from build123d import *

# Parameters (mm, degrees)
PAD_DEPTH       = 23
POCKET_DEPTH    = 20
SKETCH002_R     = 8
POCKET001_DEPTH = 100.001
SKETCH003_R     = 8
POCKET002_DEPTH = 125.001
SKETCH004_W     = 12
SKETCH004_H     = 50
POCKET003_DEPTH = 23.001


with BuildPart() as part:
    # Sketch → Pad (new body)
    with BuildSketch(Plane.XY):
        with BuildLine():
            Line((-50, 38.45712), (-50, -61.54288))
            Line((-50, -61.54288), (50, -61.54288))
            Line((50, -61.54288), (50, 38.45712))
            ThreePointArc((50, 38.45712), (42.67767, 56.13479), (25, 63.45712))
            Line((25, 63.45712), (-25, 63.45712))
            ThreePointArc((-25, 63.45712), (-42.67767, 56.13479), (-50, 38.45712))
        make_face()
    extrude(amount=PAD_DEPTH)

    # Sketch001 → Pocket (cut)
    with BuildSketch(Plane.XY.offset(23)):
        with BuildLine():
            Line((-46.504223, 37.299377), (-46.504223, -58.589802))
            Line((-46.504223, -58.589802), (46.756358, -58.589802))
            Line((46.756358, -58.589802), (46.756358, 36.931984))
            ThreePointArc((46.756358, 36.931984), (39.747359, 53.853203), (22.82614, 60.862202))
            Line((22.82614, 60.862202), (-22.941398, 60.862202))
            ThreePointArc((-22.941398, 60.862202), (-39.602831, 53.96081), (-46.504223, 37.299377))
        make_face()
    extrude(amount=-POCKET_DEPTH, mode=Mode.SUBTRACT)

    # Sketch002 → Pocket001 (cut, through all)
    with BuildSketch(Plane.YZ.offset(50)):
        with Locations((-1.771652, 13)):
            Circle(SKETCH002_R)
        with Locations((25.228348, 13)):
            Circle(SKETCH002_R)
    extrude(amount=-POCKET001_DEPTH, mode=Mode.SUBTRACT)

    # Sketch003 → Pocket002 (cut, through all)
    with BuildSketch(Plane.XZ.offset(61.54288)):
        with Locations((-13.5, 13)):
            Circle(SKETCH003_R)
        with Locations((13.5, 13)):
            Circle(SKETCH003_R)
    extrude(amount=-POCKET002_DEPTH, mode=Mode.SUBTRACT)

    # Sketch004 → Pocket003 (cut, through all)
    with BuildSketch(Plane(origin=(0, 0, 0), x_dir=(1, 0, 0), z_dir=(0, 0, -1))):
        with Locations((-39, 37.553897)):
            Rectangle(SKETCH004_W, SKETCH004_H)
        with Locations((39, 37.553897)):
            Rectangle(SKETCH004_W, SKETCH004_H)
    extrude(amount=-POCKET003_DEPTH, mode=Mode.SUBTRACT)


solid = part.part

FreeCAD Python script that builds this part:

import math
import FreeCAD as App
import Part
import Sketcher
from FreeCAD import Vector
Q = App.Units.Quantity


def add_polygon(sketch, points):
    """Adds a closed chain of lines whose ends are joined by coincident constraints."""
    first, n = sketch.GeometryCount, len(points)
    for a, b in zip(points, points[1:] + points[:1]):
        sketch.addGeometry(Part.LineSegment(App.Vector(*a, 0), App.Vector(*b, 0)), False)
    for i in range(n):
        sketch.addConstraint(Sketcher.Constraint("Coincident", first + i, 2, first + (i + 1) % n, 1))

doc = App.newDocument("Part")
body = doc.addObject("PartDesign::Body", "Body")

sketch1 = body.newObject("Sketcher::SketchObject", "Sketch")
sketch1.AttachmentSupport = (doc.getObject("XY_Plane"), [""])
sketch1.MapMode = "FlatFace"
sketch1.addGeometry([
    Part.LineSegment(Vector(-50, 38, 0), Vector(-50, -62, 0)),
    Part.LineSegment(Vector(-50, -62, 0), Vector(50, -62, 0)),
    Part.LineSegment(Vector(50, -62, 0), Vector(50, 38, 0)),
    Part.ArcOfCircle(Part.Circle(Vector(25, 38, 0), Vector(0, 0, 1), 25), math.radians(0), math.radians(90)),
    Part.LineSegment(Vector(25, 63, 0), Vector(-25, 63, 0)),
    Part.ArcOfCircle(Part.Circle(Vector(-25, 38, 0), Vector(0, 0, 1), 25), math.radians(90), math.radians(180)),
], False)
sketch1.addConstraint([
    Sketcher.Constraint("Coincident", 0, 2, 1, 1),
    Sketcher.Constraint("Coincident", 1, 2, 2, 1),
    Sketcher.Constraint("Tangent", 2, 2, 3, 1),
    Sketcher.Constraint("Tangent", 3, 2, 4, 1),
    Sketcher.Constraint("Tangent", 4, 2, 5, 1),
    Sketcher.Constraint("Tangent", 5, 2, 0, 1),
    Sketcher.Constraint("Vertical", 0),
    Sketcher.Constraint("Horizontal", 1),
    Sketcher.Constraint("Vertical", 2),
    Sketcher.Constraint("Horizontal", 4),
    Sketcher.Constraint("Equal", 3, 5),
    Sketcher.Constraint("Equal", 1, 0),
    Sketcher.Constraint("Radius", 3, Q("24.999998 mm")),
    Sketcher.Constraint("DistanceX", 1, 1, 1, 2, Q("100 mm")),
    Sketcher.Constraint("DistanceX", -1, 1, 3, 3, Q("25.000002 mm")),
    Sketcher.Constraint("DistanceY", -1, 1, 3, 3, Q("38.457122 mm")),
])
pad1 = body.newObject("PartDesign::Pad", "Pad")
pad1.Profile = sketch1
pad1.Length = 23

sketch2 = body.newObject("Sketcher::SketchObject", "Sketch001")
sketch2.AttachmentSupport = (doc.getObject("XY_Plane"), [""])
sketch2.MapMode = "FlatFace"
sketch2.AttachmentOffset = App.Placement(Vector(0, 0, 23), App.Rotation())
sketch2.addGeometry([
    Part.LineSegment(Vector(-47, 37, 0), Vector(-47, -59, 0)),
    Part.LineSegment(Vector(-47, -59, 0), Vector(47, -59, 0)),
    Part.LineSegment(Vector(47, -59, 0), Vector(47, 37, 0)),
    Part.ArcOfCircle(Part.Circle(Vector(23, 37, 0), Vector(0, 0, 1), 24), math.radians(0), math.radians(90)),
    Part.LineSegment(Vector(23, 61, 0), Vector(-23, 61, 0)),
    Part.ArcOfCircle(Part.Circle(Vector(-23, 37, 0), Vector(0, 0, 1), 24), math.radians(90), math.radians(180)),
], False)
sketch2.addConstraint([
    Sketcher.Constraint("Coincident", 0, 2, 1, 1),
    Sketcher.Constraint("Coincident", 1, 2, 2, 1),
    Sketcher.Constraint("Tangent", 2, 2, 3, 1),
    Sketcher.Constraint("Tangent", 3, 2, 4, 1),
    Sketcher.Constraint("Tangent", 4, 2, 5, 1),
    Sketcher.Constraint("Tangent", 5, 2, 0, 1),
    Sketcher.Constraint("Vertical", 0),
    Sketcher.Constraint("Horizontal", 1),
    Sketcher.Constraint("Vertical", 2),
    Sketcher.Constraint("Horizontal", 4),
    Sketcher.Constraint("Radius", 3, Q("23.930219 mm")),
    Sketcher.Constraint("Radius", 5, Q("23.562826 mm")),
    Sketcher.Constraint("DistanceX", 1, 1, 1, 2, Q("93.260581 mm")),
    Sketcher.Constraint("DistanceY", 0, 2, 0, 1, Q("95.889179 mm")),
    Sketcher.Constraint("DistanceY", -1, 1, 3, 2, Q("60.862202 mm")),
    Sketcher.Constraint("DistanceX", -1, 1, 3, 3, Q("22.826139 mm")),
])
pocket1 = body.newObject("PartDesign::Pocket", "Pocket")
pocket1.Profile = sketch2
pocket1.Length = 20

sketch3 = body.newObject("Sketcher::SketchObject", "Sketch002")
sketch3.AttachmentSupport = (doc.getObject("YZ_Plane"), [""])
sketch3.MapMode = "FlatFace"
sketch3.AttachmentOffset = App.Placement(Vector(0, 0, 50), App.Rotation())
sketch3.addGeometry([
    Part.Circle(Vector(-2, 13, 0), Vector(0, 0, 1), 8),
    Part.Circle(Vector(25, 13, 0), Vector(0, 0, 1), 8),
], False)
sketch3.addConstraint([
    Sketcher.Constraint("Equal", 0, 1),
    Sketcher.Constraint("Horizontal", 0, 3, 1, 3),
    Sketcher.Constraint("Diameter", 0, Q("16 mm")),
    Sketcher.Constraint("DistanceY", -1, 1, 0, 3, Q("13 mm")),
    Sketcher.Constraint("DistanceX", 0, 3, 1, 3, Q("27 mm")),
    Sketcher.Constraint("DistanceX", -1, 1, 1, 3, Q("25.228348 mm")),
])
pocket2 = body.newObject("PartDesign::Pocket", "Pocket001")
pocket2.Profile = sketch3
pocket2.Type = "ThroughAll"

sketch4 = body.newObject("Sketcher::SketchObject", "Sketch003")
sketch4.AttachmentSupport = (doc.getObject("XZ_Plane"), [""])
sketch4.MapMode = "FlatFace"
sketch4.AttachmentOffset = App.Placement(Vector(0, 0, 61.54288), App.Rotation())
sketch4.addGeometry([
    Part.Circle(Vector(-14, 13, 0), Vector(0, 0, 1), 8),
    Part.Circle(Vector(14, 13, 0), Vector(0, 0, 1), 8),
], False)
sketch4.addConstraint([
    Sketcher.Constraint("Equal", 0, 1),
    Sketcher.Constraint("Symmetric", 0, 3, 1, 3, -2),
    Sketcher.Constraint("Diameter", 0, Q("16 mm")),
    Sketcher.Constraint("DistanceY", -1, 1, 0, 3, Q("13 mm")),
    Sketcher.Constraint("DistanceX", 0, 3, 1, 3, Q("27 mm")),
])
pocket3 = body.newObject("PartDesign::Pocket", "Pocket002")
pocket3.Profile = sketch4
pocket3.Type = "ThroughAll"

sketch5 = body.newObject("Sketcher::SketchObject", "Sketch004")
sketch5.AttachmentSupport = (doc.getObject("XY_Plane"), [""])
sketch5.MapMode = "FlatFace"
add_polygon(sketch5, [(-45, -63), (-45, -13), (-33, -13), (-33, -63)])
add_polygon(sketch5, [(33, -63), (33, -13), (45, -13), (45, -63)])
sketch5.addConstraint([
    Sketcher.Constraint("Vertical", 0),
    Sketcher.Constraint("Horizontal", 1),
    Sketcher.Constraint("Vertical", 2),
    Sketcher.Constraint("Horizontal", 3),
    Sketcher.Constraint("Vertical", 4),
    Sketcher.Constraint("Horizontal", 5),
    Sketcher.Constraint("Vertical", 6),
    Sketcher.Constraint("Horizontal", 7),
    Sketcher.Constraint("Symmetric", 1, 2, 4, 2, -2),
    Sketcher.Constraint("Symmetric", 3, 2, 6, 2, -2),
    Sketcher.Constraint("DistanceX", 1, 1, 1, 2, Q("12 mm")),
    Sketcher.Constraint("DistanceY", 0, 1, 0, 2, Q("50 mm")),
    Sketcher.Constraint("DistanceX", 0, 2, -1, 1, Q("45 mm")),
    Sketcher.Constraint("DistanceY", 0, 2, -1, 1, Q("12.553897 mm")),
])
pocket4 = body.newObject("PartDesign::Pocket", "Pocket003")
pocket4.Profile = sketch5
pocket4.Type = "ThroughAll"
pocket4.Reversed = True

doc.recompute()
